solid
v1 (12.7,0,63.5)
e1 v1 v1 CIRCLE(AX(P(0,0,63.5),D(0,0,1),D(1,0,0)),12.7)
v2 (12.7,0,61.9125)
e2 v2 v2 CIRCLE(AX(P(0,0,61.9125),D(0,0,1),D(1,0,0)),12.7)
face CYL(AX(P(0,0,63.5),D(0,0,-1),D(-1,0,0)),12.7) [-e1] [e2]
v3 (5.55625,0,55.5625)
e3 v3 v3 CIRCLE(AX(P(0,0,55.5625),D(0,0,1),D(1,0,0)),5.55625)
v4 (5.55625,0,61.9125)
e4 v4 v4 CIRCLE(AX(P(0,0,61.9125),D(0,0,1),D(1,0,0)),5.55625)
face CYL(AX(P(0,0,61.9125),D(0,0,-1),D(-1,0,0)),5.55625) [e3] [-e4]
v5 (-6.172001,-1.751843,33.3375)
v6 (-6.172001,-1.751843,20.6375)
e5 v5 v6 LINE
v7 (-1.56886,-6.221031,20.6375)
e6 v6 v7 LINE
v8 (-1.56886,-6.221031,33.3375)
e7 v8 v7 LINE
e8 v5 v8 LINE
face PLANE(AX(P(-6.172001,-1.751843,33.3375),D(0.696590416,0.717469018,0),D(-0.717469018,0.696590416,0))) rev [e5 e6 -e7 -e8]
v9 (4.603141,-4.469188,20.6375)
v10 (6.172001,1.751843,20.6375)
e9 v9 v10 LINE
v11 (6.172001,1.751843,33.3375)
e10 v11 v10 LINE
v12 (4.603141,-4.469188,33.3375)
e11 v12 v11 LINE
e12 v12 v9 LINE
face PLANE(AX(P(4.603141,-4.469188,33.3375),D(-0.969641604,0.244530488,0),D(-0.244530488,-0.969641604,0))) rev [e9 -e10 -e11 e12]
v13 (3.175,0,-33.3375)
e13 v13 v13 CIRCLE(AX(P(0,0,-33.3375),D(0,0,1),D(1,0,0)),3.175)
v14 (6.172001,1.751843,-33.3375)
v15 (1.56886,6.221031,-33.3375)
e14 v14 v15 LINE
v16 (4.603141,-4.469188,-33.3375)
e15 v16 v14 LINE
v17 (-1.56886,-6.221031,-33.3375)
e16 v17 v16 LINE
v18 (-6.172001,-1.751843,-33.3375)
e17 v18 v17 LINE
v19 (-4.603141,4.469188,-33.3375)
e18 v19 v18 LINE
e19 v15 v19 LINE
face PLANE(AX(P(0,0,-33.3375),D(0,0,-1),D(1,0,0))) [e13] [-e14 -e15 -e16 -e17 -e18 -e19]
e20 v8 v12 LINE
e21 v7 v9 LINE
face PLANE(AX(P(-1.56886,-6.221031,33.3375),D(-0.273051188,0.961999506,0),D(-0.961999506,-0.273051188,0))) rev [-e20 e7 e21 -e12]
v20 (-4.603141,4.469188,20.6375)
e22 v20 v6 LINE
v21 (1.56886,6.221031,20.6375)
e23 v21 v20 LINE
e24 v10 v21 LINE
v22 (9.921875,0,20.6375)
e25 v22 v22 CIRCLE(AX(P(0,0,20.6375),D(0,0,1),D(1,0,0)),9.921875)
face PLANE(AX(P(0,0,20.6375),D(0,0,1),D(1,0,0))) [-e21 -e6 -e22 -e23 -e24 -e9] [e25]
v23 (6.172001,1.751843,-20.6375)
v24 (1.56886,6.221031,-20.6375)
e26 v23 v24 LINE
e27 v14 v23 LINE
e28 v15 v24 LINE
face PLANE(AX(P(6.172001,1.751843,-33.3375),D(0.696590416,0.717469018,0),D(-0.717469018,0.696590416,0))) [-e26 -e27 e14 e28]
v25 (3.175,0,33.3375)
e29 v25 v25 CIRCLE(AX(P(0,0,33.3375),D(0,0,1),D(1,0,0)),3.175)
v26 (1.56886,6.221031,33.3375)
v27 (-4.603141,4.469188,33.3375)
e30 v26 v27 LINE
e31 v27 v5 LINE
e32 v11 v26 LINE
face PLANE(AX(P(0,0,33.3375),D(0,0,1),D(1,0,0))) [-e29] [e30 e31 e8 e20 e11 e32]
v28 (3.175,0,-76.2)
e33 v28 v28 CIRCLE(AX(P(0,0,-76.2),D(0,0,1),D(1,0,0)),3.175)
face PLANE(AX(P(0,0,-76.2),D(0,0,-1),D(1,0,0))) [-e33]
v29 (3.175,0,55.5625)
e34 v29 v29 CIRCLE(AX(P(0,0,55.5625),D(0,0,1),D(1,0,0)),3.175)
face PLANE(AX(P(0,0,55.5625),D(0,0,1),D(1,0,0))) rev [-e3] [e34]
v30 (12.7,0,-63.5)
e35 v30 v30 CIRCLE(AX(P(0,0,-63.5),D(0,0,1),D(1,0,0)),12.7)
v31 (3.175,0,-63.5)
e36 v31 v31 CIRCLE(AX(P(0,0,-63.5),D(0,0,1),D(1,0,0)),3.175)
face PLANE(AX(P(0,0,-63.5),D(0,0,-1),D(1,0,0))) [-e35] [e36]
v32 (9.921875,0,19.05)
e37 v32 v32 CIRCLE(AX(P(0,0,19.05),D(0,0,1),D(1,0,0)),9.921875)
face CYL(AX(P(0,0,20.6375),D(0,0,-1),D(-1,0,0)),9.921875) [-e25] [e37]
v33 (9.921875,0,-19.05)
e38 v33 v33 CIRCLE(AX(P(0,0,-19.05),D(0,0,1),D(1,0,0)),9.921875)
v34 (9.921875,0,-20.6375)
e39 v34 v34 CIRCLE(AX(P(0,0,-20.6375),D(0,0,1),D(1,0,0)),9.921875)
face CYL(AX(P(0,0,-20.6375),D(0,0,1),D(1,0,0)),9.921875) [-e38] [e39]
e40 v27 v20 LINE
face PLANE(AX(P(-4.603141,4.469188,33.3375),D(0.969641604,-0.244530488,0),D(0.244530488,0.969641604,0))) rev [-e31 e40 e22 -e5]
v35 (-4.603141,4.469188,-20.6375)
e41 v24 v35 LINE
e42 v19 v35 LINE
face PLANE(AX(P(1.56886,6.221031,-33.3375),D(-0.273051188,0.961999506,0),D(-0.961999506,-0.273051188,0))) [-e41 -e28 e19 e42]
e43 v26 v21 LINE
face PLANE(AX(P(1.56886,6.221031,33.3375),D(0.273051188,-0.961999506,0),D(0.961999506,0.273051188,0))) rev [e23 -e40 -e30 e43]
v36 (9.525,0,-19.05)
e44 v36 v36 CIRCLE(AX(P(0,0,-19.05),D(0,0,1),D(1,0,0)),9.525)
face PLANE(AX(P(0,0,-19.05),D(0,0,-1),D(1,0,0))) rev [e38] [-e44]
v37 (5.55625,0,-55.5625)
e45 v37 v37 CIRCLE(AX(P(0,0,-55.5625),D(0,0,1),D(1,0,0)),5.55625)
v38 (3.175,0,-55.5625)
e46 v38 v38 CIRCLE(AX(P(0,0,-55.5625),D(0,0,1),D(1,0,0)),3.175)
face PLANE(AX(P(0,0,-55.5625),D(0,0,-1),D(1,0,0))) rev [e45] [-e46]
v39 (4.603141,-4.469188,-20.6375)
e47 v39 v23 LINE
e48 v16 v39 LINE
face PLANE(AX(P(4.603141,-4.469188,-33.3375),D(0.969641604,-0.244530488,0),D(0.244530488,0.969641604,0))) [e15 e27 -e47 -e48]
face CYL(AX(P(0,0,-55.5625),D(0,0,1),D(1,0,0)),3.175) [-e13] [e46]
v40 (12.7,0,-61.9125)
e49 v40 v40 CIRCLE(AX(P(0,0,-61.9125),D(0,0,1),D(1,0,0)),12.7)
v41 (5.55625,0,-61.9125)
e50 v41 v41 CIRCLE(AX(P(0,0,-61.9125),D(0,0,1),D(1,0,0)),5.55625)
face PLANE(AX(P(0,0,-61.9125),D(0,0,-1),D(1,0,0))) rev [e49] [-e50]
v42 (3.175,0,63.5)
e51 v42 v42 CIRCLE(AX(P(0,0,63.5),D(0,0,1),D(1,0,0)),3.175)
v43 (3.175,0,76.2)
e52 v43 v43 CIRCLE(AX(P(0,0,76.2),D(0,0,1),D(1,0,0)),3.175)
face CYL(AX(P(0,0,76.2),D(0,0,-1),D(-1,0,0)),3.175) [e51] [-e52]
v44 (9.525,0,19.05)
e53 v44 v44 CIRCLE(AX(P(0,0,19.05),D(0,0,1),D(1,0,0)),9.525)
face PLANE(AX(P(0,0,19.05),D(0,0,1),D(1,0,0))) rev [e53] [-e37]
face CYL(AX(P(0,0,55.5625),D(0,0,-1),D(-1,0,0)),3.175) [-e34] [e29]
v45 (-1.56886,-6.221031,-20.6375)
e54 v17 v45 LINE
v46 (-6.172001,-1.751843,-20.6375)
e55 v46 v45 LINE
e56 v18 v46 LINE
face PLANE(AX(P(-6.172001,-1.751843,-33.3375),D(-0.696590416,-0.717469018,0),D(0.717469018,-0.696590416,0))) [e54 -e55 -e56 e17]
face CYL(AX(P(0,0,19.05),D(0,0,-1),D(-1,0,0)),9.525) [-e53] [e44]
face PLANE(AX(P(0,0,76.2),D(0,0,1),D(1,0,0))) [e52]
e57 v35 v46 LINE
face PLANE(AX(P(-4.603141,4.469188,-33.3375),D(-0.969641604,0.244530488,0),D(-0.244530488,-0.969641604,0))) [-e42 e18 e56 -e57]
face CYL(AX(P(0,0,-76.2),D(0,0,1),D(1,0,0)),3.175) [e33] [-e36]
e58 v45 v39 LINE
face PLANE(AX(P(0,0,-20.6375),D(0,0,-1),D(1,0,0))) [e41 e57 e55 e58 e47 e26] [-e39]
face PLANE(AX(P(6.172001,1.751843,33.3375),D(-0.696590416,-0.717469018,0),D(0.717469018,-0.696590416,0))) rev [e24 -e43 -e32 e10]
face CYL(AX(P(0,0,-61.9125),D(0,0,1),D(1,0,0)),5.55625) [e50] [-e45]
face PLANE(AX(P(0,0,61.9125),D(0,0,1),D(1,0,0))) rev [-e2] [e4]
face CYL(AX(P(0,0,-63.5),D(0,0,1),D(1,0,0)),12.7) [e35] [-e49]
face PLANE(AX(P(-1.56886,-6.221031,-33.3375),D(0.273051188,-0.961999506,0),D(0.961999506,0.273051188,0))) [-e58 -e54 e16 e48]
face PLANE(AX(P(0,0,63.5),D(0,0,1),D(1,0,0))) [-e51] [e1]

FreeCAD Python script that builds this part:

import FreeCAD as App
import Part
import Sketcher

V = App.Vector
Q = App.Units.Quantity


def add_polygon(sketch, points):
    """Adds a closed chain of lines whose ends are joined by coincident constraints."""
    first, n = sketch.GeometryCount, len(points)
    for a, b in zip(points, points[1:] + points[:1]):
        sketch.addGeometry(Part.LineSegment(App.Vector(*a, 0), App.Vector(*b, 0)), False)
    for i in range(n):
        sketch.addConstraint(Sketcher.Constraint("Coincident", first + i, 2, first + (i + 1) % n, 1))

doc = App.newDocument("Part")
body = doc.addObject("PartDesign::Body", "Body")

sketch1 = body.newObject("Sketcher::SketchObject", "Sketch")
sketch1.AttachmentSupport = (doc.getObject("XY_Plane"), [""])
sketch1.MapMode = "FlatFace"
sketch1.addGeometry(Part.Circle(V(0, 0, 0), V(0, 0, 1), 10), False)
sketch1.addConstraint([
    Sketcher.Constraint("Coincident", 0, 3, -1, 1),
    Sketcher.Constraint("Diameter", 0, Q("0.75 in")),
])
pad1 = body.newObject("PartDesign::Pad", "Pad")
pad1.Profile = sketch1
pad1.Length = Q("0.75 in")

sketch2 = body.newObject("Sketcher::SketchObject", "Sketch001")
sketch2.AttachmentSupport = (doc.getObject("XY_Plane"), [""])
sketch2.MapMode = "FlatFace"
sketch2.AttachmentOffset = App.Placement(V(0, 0, 0.75 * 25.4), App.Rotation())
sketch2.addGeometry(Part.Circle(V(0, 0, 0), V(0, 0, 1), 10), False)
sketch2.addConstraint([
    Sketcher.Constraint("Coincident", 0, 3, -1, 1),
    Sketcher.Constraint("Diameter", 0, Q("0.78125 in")),
])
pad2 = body.newObject("PartDesign::Pad", "Pad001")
pad2.Profile = sketch2
pad2.Length = Q("0.0625 in")

sketch3 = body.newObject("Sketcher::SketchObject", "Sketch002")
sketch3.AttachmentSupport = (doc.getObject("XY_Plane"), [""])
sketch3.MapMode = "FlatFace"
sketch3.AttachmentOffset = App.Placement(V(0, 0, 0.8125 * 25.4), App.Rotation())
add_polygon(sketch3, [(5, -4), (6, 2), (2, 6), (-5, 4), (-6, -2), (-2, -6)])
sketch3.addConstraint([
    Sketcher.Constraint("Symmetric", 0, 2, 3, 2, -1, 1),
    Sketcher.Constraint("Symmetric", 1, 2, 4, 2, -1, 1),
    Sketcher.Constraint("Symmetric", 2, 2, 5, 2, -1, 1),
    Sketcher.Constraint("Equal", 0, 1),
    Sketcher.Constraint("Equal", 1, 2),
    Sketcher.Constraint("DistanceX", -1, 1, 0, 2, 6.172001),
    Sketcher.Constraint("DistanceX", 2, 2, 1, 2, 6.172001),
    Sketcher.Constraint("DistanceX", -1, 1, 1, 2, 1.56886),
    Sketcher.Constraint("DistanceY", -1, 1, 1, 2, 6.221031),
])
pad3 = body.newObject("PartDesign::Pad", "Pad002")
pad3.Profile = sketch3
pad3.Length = Q("0.5 in")

sketch4 = body.newObject("Sketcher::SketchObject", "Sketch003")
sketch4.AttachmentSupport = (doc.getObject("XY_Plane"), [""])
sketch4.MapMode = "FlatFace"
sketch4.AttachmentOffset = App.Placement(V(0, 0, 1.3125 * 25.4), App.Rotation())
sketch4.addGeometry(Part.Circle(V(0, 0, 0), V(0, 0, 1), 3.2), False)
sketch4.addConstraint([
    Sketcher.Constraint("Coincident", 0, 3, -1, 1),
    Sketcher.Constraint("Diameter", 0, Q("0.25 in")),
])
pad4 = body.newObject("PartDesign::Pad", "Pad003")
pad4.Profile = sketch4
pad4.Length = Q("0.875 in")

sketch5 = body.newObject("Sketcher::SketchObject", "Sketch004")
sketch5.AttachmentSupport = (doc.getObject("XY_Plane"), [""])
sketch5.MapMode = "FlatFace"
sketch5.AttachmentOffset = App.Placement(V(0, 0, 2.1875 * 25.4), App.Rotation())
sketch5.addGeometry(Part.Circle(V(0, 0, 0), V(0, 0, 1), 6), False)
sketch5.addConstraint([
    Sketcher.Constraint("Coincident", 0, 3, -1, 1),
    Sketcher.Constraint("Diameter", 0, Q("0.4375 in")),
])
pad5 = body.newObject("PartDesign::Pad", "Pad004")
pad5.Profile = sketch5
pad5.Length = Q("0.25 in")

sketch6 = body.newObject("Sketcher::SketchObject", "Sketch005")
sketch6.AttachmentSupport = (doc.getObject("XY_Plane"), [""])
sketch6.MapMode = "FlatFace"
sketch6.AttachmentOffset = App.Placement(V(0, 0, 2.4375 * 25.4), App.Rotation())
sketch6.addGeometry(Part.Circle(V(0, 0, 0), V(0, 0, 1), 13), False)
sketch6.addConstraint([
    Sketcher.Constraint("Coincident", 0, 3, -1, 1),
    Sketcher.Constraint("Diameter", 0, Q("1 in")),
])
pad6 = body.newObject("PartDesign::Pad", "Pad005")
pad6.Profile = sketch6
pad6.Length = Q("0.0625 in")

sketch7 = body.newObject("Sketcher::SketchObject", "Sketch006")
sketch7.AttachmentSupport = (doc.getObject("XY_Plane"), [""])
sketch7.MapMode = "FlatFace"
sketch7.AttachmentOffset = App.Placement(V(0, 0, 2.5 * 25.4), App.Rotation())
sketch7.addGeometry(Part.Circle(V(0, 0, 0), V(0, 0, 1), 3.2), False)
sketch7.addConstraint([
    Sketcher.Constraint("Coincident", 0, 3, -1, 1),
    Sketcher.Constraint("Diameter", 0, Q("0.25 in")),
])
pad7 = body.newObject("PartDesign::Pad", "Pad006")
pad7.Profile = sketch7
pad7.Length = Q("0.5 in")
doc.recompute()

mirrored = body.newObject("PartDesign::Mirrored", "Mirrored")
mirrored.Originals = [pad1, pad2, pad3, pad4, pad5, pad6, pad7]
mirrored.MirrorPlane = (doc.getObject("XY_Plane"), [""])
body.Tip = mirrored

doc.recompute()
